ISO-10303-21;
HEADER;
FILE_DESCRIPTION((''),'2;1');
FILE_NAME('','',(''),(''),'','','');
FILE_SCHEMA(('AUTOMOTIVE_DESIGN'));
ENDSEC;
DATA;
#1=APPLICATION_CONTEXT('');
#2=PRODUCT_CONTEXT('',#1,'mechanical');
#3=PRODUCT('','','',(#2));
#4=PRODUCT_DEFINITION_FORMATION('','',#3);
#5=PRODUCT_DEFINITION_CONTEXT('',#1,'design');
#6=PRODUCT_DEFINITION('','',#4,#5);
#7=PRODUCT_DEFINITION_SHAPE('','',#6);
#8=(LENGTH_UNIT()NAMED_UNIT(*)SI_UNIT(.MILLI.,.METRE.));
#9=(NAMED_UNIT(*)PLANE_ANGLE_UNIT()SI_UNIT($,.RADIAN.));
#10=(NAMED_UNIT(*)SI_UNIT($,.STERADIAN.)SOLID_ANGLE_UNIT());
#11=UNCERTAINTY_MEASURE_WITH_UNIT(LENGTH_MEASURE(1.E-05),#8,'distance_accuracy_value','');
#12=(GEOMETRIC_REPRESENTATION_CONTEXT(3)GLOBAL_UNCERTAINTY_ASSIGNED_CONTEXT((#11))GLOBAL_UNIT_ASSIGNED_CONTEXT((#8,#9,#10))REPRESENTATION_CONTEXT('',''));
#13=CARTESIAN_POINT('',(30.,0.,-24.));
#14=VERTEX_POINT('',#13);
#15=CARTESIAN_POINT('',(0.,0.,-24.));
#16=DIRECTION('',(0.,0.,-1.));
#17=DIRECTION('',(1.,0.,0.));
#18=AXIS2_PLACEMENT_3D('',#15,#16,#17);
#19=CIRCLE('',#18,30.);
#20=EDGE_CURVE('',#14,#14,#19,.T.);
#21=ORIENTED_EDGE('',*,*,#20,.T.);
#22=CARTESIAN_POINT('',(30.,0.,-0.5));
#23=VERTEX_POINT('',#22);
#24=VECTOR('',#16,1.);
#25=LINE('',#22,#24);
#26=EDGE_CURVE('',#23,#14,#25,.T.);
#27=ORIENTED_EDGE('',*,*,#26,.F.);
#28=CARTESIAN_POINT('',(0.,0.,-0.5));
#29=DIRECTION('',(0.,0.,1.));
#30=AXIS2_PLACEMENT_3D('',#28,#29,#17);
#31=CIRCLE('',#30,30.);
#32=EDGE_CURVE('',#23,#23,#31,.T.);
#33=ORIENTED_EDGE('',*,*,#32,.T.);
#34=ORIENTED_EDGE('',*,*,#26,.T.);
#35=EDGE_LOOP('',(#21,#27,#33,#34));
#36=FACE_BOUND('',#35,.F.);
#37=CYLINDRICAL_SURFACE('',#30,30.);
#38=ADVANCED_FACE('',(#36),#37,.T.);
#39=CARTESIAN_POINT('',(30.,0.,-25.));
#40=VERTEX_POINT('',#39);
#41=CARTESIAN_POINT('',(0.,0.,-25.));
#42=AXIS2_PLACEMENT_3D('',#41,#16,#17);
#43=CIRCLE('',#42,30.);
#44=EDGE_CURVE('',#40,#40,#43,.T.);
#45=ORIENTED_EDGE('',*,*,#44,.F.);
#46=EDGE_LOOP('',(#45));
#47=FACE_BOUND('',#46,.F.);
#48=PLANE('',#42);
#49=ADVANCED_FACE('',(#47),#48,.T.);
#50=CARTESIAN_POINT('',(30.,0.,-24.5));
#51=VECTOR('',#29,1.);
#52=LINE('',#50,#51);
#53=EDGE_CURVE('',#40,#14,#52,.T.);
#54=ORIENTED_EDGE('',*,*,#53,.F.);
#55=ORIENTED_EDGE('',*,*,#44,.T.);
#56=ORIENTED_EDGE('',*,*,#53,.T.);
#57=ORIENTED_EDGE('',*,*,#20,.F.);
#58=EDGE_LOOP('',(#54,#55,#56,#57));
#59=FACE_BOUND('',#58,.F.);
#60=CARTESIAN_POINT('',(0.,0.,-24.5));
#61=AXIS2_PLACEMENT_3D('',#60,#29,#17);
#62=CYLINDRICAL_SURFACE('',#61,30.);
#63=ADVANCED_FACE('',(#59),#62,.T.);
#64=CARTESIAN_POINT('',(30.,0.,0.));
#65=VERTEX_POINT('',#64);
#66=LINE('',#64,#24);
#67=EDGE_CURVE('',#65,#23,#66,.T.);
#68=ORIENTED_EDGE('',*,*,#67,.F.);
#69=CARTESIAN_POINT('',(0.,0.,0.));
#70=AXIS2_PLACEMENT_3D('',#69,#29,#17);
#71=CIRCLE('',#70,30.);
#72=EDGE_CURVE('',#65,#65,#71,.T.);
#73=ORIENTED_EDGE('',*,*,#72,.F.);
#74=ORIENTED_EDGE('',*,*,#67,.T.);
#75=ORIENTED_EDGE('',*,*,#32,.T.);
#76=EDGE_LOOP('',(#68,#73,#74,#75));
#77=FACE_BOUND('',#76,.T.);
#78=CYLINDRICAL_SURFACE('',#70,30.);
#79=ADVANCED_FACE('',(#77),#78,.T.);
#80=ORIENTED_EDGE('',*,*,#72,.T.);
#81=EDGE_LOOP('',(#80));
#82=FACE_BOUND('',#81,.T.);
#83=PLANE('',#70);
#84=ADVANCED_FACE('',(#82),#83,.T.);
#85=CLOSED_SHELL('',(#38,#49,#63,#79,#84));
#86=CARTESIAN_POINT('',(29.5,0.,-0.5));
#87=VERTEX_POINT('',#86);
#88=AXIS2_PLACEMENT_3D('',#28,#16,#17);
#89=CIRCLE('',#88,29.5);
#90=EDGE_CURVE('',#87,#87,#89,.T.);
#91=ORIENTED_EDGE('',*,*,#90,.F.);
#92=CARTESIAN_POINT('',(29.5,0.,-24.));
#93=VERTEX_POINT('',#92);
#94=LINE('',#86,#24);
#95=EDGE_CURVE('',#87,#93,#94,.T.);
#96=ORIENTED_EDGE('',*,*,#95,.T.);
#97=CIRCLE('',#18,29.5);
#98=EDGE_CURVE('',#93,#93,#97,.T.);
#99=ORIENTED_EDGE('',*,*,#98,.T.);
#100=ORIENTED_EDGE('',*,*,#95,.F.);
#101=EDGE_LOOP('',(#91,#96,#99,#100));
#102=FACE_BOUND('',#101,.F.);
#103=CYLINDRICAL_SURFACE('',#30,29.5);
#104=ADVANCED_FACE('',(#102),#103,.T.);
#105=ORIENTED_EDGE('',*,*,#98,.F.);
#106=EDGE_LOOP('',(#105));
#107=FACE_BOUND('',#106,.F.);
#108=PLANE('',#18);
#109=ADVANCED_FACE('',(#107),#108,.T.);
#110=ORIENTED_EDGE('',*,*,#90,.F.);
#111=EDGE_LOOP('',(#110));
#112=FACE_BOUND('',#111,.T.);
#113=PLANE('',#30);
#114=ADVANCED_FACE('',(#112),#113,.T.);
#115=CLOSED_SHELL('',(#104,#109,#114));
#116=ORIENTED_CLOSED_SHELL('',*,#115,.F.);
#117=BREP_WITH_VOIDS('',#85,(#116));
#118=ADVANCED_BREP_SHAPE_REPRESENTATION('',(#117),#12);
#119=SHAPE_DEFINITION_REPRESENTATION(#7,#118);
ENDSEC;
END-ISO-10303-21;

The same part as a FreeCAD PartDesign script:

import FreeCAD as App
import Part
import Sketcher

V = App.Vector

doc = App.newDocument("Part")
params = doc.addObject("Spreadsheet::Sheet", "Params")
for row, (alias, value) in enumerate([
    ("sketch1_diameter", "60 mm"),
    ("pad1_length", "0.5 mm"),
    ("sketch2_width", "30 mm"),
    ("sketch2_height", "1 mm"),
    ("revolution_angle", "360 deg"),
    ("sketch3_diameter", "60 mm"),
    ("sketch3_diameter2", "59 mm"),
], start=1):
    params.set(f"A{row}", alias)
    params.set(f"B{row}", "=" + value)
    params.setAlias(f"B{row}", alias)

body = doc.addObject("PartDesign::Body", "Body")

# Sketch on XY plane
sketch1 = body.newObject("Sketcher::SketchObject", "Sketch")
sketch1.AttachmentSupport = (doc.getObject("XY_Plane"), [""])
sketch1.MapMode = "FlatFace"
sketch1.addGeometry(Part.Circle(V(0, 0, 0), V(0, 0, 1), 30), False)
sketch1.addConstraint([
    Sketcher.Constraint("Coincident", 0, 3, -1, 1),
    Sketcher.Constraint("Diameter", 0, 60.0),
])
sketch1.setExpression("Constraints[1]", "Params.sketch1_diameter")
pad1 = body.newObject("PartDesign::Pad", "Pad")
pad1.Profile = sketch1
pad1.setExpression("Length", "Params.pad1_length")
pad1.Reversed = True
body2 = doc.addObject("PartDesign::Body", "Body001")

# Sketch on XZ plane
sketch2 = body2.newObject("Sketcher::SketchObject", "Sketch001")
sketch2.AttachmentSupport = (doc.getObject("XZ_Plane001"), [""])
sketch2.MapMode = "FlatFace"
sketch2.addGeometry([
    Part.LineSegment(V(0, -24, 0), V(0, -25, 0)),
    Part.LineSegment(V(0, -25, 0), V(30, -25, 0)),
    Part.LineSegment(V(30, -25, 0), V(30, -24, 0)),
    Part.LineSegment(V(30, -24, 0), V(0, -24, 0)),
], False)
sketch2.addConstraint([
    Sketcher.Constraint("Coincident", 0, 2, 1, 1),
    Sketcher.Constraint("Coincident", 1, 2, 2, 1),
    Sketcher.Constraint("Coincident", 2, 2, 3, 1),
    Sketcher.Constraint("Coincident", 3, 2, 0, 1),
    Sketcher.Constraint("Vertical", 0),
    Sketcher.Constraint("Horizontal", 1),
    Sketcher.Constraint("Vertical", 2),
    Sketcher.Constraint("Horizontal", 3),
    Sketcher.Constraint("PointOnObject", 0, 2, -2),
    Sketcher.Constraint("DistanceX", 1, 1, 1, 2, 30.0),
    Sketcher.Constraint("DistanceY", 0, 2, 0, 1, 1.0),
    Sketcher.Constraint("DistanceY", 0, 2, -1, 1, 25.0),
])
sketch2.setExpression("Constraints[9]", "Params.sketch2_width")
sketch2.setExpression("Constraints[10]", "Params.sketch2_height")
revolution = body2.newObject("PartDesign::Revolution", "Revolution")
revolution.Profile = sketch2
revolution.ReferenceAxis = (sketch2, ["V_Axis"])
revolution.setExpression("Angle", "Params.revolution_angle")
body.AllowCompound = True
doc.recompute()

boolean = body.newObject("PartDesign::Boolean", "Boolean")
boolean.Type = "Fuse"
boolean.addObjects([body2])

# Sketch on XY plane
sketch3 = body.newObject("Sketcher::SketchObject", "Sketch002")
sketch3.AttachmentSupport = (doc.getObject("XY_Plane"), [""])
sketch3.MapMode = "FlatFace"
sketch3.AttachmentOffset = App.Placement(V(0, 0, -0.5), App.Rotation())
sketch3.addGeometry([
    Part.Circle(V(0, 0, 0), V(0, 0, 1), 30),
    Part.Circle(V(0, 0, 0), V(0, 0, 1), 29.5),
], False)
sketch3.addConstraint([
    Sketcher.Constraint("Coincident", 0, 3, -1, 1),
    Sketcher.Constraint("Coincident", 1, 3, -1, 1),
    Sketcher.Constraint("Diameter", 0, 60.0),
    Sketcher.Constraint("Diameter", 1, 59.0),
])
sketch3.setExpression("Constraints[2]", "Params.sketch3_diameter")
sketch3.setExpression("Constraints[3]", "Params.sketch3_diameter2")
pad2 = body.newObject("PartDesign::Pad", "Pad001")
pad2.Profile = sketch3
pad2.Type = "UpToLast"
pad2.Reversed = True

doc.recompute()
